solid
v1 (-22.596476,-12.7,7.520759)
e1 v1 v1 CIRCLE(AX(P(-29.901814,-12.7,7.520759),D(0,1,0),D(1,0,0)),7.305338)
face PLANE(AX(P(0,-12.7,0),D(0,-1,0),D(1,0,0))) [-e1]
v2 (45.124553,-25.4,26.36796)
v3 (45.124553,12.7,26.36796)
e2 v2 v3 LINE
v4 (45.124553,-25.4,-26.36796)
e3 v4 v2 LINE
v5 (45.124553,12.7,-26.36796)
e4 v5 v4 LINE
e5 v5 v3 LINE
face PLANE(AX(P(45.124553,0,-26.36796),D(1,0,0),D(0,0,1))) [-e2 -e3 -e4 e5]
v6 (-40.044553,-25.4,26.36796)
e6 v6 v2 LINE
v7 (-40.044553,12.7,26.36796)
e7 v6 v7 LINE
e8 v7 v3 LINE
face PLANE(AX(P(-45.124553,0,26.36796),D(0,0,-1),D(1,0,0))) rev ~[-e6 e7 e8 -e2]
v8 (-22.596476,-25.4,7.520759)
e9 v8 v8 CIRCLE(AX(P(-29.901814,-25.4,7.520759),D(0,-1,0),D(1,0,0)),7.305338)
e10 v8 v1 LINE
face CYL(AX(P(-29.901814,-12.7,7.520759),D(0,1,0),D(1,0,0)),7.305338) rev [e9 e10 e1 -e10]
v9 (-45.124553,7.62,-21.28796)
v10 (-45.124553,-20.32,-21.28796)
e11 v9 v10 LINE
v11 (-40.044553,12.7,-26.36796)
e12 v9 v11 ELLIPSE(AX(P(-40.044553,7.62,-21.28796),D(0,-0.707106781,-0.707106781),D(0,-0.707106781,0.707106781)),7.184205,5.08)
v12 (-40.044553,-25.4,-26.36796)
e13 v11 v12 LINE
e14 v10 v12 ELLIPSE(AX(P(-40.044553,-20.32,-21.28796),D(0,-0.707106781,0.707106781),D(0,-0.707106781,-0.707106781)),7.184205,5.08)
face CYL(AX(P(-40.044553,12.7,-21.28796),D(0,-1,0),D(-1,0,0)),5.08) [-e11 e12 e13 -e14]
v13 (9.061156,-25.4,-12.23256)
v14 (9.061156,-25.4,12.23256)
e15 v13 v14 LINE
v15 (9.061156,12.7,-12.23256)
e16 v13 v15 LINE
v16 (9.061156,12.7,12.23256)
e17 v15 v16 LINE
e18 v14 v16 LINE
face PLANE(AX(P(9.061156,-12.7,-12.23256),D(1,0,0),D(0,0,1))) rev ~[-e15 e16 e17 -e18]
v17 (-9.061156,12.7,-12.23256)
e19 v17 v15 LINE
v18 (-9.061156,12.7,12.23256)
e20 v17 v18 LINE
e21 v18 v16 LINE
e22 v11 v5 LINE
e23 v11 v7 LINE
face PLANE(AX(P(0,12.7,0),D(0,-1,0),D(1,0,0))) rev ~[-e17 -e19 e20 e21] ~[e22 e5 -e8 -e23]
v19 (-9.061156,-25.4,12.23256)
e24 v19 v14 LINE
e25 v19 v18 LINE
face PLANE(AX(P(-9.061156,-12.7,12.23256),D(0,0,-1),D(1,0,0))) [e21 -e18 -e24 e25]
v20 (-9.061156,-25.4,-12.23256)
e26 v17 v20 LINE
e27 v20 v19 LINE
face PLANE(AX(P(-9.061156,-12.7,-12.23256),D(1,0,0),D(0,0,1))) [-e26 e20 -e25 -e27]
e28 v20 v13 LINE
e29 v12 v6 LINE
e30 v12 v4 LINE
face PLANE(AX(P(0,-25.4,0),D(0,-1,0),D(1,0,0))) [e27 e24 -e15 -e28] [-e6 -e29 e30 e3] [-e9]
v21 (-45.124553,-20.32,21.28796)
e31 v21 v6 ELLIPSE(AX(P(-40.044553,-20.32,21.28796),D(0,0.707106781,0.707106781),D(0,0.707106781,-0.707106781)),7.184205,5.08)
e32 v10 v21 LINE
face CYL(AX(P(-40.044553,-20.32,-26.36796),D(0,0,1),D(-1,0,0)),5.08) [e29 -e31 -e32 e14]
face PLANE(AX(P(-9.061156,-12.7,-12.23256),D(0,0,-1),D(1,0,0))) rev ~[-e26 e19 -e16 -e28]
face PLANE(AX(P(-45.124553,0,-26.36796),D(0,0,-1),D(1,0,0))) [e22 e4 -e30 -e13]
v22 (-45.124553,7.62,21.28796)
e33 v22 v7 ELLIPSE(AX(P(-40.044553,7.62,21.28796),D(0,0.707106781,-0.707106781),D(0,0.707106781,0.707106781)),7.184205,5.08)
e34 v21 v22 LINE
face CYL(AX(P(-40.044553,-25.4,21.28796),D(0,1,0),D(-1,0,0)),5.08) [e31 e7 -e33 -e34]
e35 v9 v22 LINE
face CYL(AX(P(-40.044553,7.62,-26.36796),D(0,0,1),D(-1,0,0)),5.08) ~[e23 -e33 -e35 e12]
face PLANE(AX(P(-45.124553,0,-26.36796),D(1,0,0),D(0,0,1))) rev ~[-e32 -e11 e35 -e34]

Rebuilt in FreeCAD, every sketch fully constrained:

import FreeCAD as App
import Part
import Sketcher

V = App.Vector
Q = App.Units.Quantity


def edges_at(feature, points):
    """Names of the edges that pass closest to the given points."""
    edges = feature.Shape.Edges
    near = lambda p: min(range(len(edges)), key=lambda i: edges[i].distToShape(Part.Vertex(*p))[0])
    return sorted({f"Edge{near(p) + 1}" for p in points})

doc = App.newDocument("Part")
params = doc.addObject("Spreadsheet::Sheet", "Params")
for row, (alias, value) in enumerate([
    ("pad1_length", "1 in"),
    ("pad2_length", "1 in"),
    ("fillet_radius", "0.2 in"),
], start=1):
    params.set(f"A{row}", alias)
    params.set(f"B{row}", "=" + value)
    params.setAlias(f"B{row}", alias)

body = doc.addObject("PartDesign::Body", "Body")

# Sketch on XZ plane
sketch1 = body.newObject("Sketcher::SketchObject", "Sketch")
sketch1.AttachmentSupport = (doc.getObject("XZ_Plane"), [""])
sketch1.MapMode = "FlatFace"
sketch1.addGeometry([
    Part.LineSegment(V(-45, 26, 0), V(-45, -26, 0)),  # 0
    Part.LineSegment(V(-45, -26, 0), V(45, -26, 0)),  # 1
    Part.LineSegment(V(45, -26, 0), V(45, 26, 0)),  # 2
    Part.LineSegment(V(45, 26, 0), V(-45, 26, 0)),  # 3
    Part.LineSegment(V(9, -12, 0), V(-9, -12, 0)),  # 4
    Part.LineSegment(V(-9, -12, 0), V(-9, 12, 0)),  # 5
    Part.LineSegment(V(-9, 12, 0), V(9, 12, 0)),  # 6
    Part.LineSegment(V(9, 12, 0), V(9, -12, 0)),  # 7
], False)
sketch1.addConstraint([
    Sketcher.Constraint("Coincident", 0, 2, 1, 1),
    Sketcher.Constraint("Coincident", 1, 2, 2, 1),
    Sketcher.Constraint("Coincident", 2, 2, 3, 1),
    Sketcher.Constraint("Coincident", 3, 2, 0, 1),
    Sketcher.Constraint("Coincident", 4, 2, 5, 1),
    Sketcher.Constraint("Coincident", 5, 2, 6, 1),
    Sketcher.Constraint("Coincident", 6, 2, 7, 1),
    Sketcher.Constraint("Coincident", 7, 2, 4, 1),
    Sketcher.Constraint("Vertical", 0),
    Sketcher.Constraint("Horizontal", 1),
    Sketcher.Constraint("Vertical", 2),
    Sketcher.Constraint("Horizontal", 3),
    Sketcher.Constraint("Horizontal", 4),
    Sketcher.Constraint("Vertical", 5),
    Sketcher.Constraint("Horizontal", 6),
    Sketcher.Constraint("Vertical", 7),
    Sketcher.Constraint("Symmetric", 0, 2, 2, 2, -1, 1),
    Sketcher.Constraint("Symmetric", 4, 2, 6, 2, -1, 1),
    Sketcher.Constraint("DistanceY", 0, 2, 0, 1, Q("52.73592 mm")),
    Sketcher.Constraint("DistanceY", 5, 1, 5, 2, Q("24.46512 mm")),
    Sketcher.Constraint("DistanceX", 1, 1, 1, 2, Q("90.249106 mm")),
    Sketcher.Constraint("DistanceX", 4, 2, 4, 1, Q("18.122312 mm")),
])
pad1 = body.newObject("PartDesign::Pad", "Pad")
pad1.Profile = sketch1
pad1.setExpression("Length", "Params.pad1_length")
pad1.Midplane = True

# Sketch on XZ plane
sketch2 = body.newObject("Sketcher::SketchObject", "Sketch001")
sketch2.AttachmentSupport = (doc.getObject("XZ_Plane"), [""])
sketch2.MapMode = "FlatFace"
sketch2.AttachmentOffset = App.Placement(V(0, 0, 0.5 * 25.4), App.Rotation())
sketch2.addGeometry([
    Part.LineSegment(V(-45, 26, 0), V(-45, -26, 0)),  # 0
    Part.LineSegment(V(-45, -26, 0), V(45, -26, 0)),  # 1
    Part.LineSegment(V(45, -26, 0), V(45, 26, 0)),  # 2
    Part.LineSegment(V(45, 26, 0), V(-45, 26, 0)),  # 3
    Part.LineSegment(V(9, -12, 0), V(-9, -12, 0)),  # 4
    Part.LineSegment(V(-9, -12, 0), V(-9, 12, 0)),  # 5
    Part.LineSegment(V(-9, 12, 0), V(9, 12, 0)),  # 6
    Part.LineSegment(V(9, 12, 0), V(9, -12, 0)),  # 7
    Part.Circle(V(-30, 8, 0), V(0, 0, 1), 7),  # 8
], False)
sketch2.addConstraint([
    Sketcher.Constraint("Coincident", 0, 2, 1, 1),
    Sketcher.Constraint("Coincident", 1, 2, 2, 1),
    Sketcher.Constraint("Coincident", 2, 2, 3, 1),
    Sketcher.Constraint("Coincident", 3, 2, 0, 1),
    Sketcher.Constraint("Coincident", 4, 2, 5, 1),
    Sketcher.Constraint("Coincident", 5, 2, 6, 1),
    Sketcher.Constraint("Coincident", 6, 2, 7, 1),
    Sketcher.Constraint("Coincident", 7, 2, 4, 1),
    Sketcher.Constraint("Vertical", 0),
    Sketcher.Constraint("Horizontal", 1),
    Sketcher.Constraint("Vertical", 2),
    Sketcher.Constraint("Horizontal", 3),
    Sketcher.Constraint("Horizontal", 4),
    Sketcher.Constraint("Vertical", 5),
    Sketcher.Constraint("Horizontal", 6),
    Sketcher.Constraint("Vertical", 7),
    Sketcher.Constraint("Symmetric", 0, 2, 2, 2, -1, 1),
    Sketcher.Constraint("Symmetric", 4, 2, 6, 2, -1, 1),
    Sketcher.Constraint("Diameter", 8, Q("14.610676 mm")),
    Sketcher.Constraint("DistanceY", 0, 2, 0, 1, Q("52.73592 mm")),
    Sketcher.Constraint("DistanceY", 5, 1, 5, 2, Q("24.46512 mm")),
    Sketcher.Constraint("DistanceY", 8, 3, 2, 2, Q("18.847201 mm")),
    Sketcher.Constraint("DistanceX", 1, 1, 1, 2, Q("90.249106 mm")),
    Sketcher.Constraint("DistanceX", 4, 2, 4, 1, Q("18.122312 mm")),
    Sketcher.Constraint("DistanceX", 0, 2, 8, 3, Q("15.222739 mm")),
])
pad2 = body.newObject("PartDesign::Pad", "Pad001")
pad2.Profile = sketch2
pad2.setExpression("Length", "Params.pad2_length")
pad2.Midplane = True
doc.recompute()

fillet = body.newObject("PartDesign::Fillet", "Fillet")
fillet.Base = (pad2, edges_at(pad2, [
    (-45.125, -6.35, 26.368),
    (-45.125, 12.7, 0),
    (-45.125, -6.35, -26.368),
    (-45.125, -25.4, 0),
]))
fillet.setExpression("Radius", "Params.fillet_radius")

doc.recompute()
